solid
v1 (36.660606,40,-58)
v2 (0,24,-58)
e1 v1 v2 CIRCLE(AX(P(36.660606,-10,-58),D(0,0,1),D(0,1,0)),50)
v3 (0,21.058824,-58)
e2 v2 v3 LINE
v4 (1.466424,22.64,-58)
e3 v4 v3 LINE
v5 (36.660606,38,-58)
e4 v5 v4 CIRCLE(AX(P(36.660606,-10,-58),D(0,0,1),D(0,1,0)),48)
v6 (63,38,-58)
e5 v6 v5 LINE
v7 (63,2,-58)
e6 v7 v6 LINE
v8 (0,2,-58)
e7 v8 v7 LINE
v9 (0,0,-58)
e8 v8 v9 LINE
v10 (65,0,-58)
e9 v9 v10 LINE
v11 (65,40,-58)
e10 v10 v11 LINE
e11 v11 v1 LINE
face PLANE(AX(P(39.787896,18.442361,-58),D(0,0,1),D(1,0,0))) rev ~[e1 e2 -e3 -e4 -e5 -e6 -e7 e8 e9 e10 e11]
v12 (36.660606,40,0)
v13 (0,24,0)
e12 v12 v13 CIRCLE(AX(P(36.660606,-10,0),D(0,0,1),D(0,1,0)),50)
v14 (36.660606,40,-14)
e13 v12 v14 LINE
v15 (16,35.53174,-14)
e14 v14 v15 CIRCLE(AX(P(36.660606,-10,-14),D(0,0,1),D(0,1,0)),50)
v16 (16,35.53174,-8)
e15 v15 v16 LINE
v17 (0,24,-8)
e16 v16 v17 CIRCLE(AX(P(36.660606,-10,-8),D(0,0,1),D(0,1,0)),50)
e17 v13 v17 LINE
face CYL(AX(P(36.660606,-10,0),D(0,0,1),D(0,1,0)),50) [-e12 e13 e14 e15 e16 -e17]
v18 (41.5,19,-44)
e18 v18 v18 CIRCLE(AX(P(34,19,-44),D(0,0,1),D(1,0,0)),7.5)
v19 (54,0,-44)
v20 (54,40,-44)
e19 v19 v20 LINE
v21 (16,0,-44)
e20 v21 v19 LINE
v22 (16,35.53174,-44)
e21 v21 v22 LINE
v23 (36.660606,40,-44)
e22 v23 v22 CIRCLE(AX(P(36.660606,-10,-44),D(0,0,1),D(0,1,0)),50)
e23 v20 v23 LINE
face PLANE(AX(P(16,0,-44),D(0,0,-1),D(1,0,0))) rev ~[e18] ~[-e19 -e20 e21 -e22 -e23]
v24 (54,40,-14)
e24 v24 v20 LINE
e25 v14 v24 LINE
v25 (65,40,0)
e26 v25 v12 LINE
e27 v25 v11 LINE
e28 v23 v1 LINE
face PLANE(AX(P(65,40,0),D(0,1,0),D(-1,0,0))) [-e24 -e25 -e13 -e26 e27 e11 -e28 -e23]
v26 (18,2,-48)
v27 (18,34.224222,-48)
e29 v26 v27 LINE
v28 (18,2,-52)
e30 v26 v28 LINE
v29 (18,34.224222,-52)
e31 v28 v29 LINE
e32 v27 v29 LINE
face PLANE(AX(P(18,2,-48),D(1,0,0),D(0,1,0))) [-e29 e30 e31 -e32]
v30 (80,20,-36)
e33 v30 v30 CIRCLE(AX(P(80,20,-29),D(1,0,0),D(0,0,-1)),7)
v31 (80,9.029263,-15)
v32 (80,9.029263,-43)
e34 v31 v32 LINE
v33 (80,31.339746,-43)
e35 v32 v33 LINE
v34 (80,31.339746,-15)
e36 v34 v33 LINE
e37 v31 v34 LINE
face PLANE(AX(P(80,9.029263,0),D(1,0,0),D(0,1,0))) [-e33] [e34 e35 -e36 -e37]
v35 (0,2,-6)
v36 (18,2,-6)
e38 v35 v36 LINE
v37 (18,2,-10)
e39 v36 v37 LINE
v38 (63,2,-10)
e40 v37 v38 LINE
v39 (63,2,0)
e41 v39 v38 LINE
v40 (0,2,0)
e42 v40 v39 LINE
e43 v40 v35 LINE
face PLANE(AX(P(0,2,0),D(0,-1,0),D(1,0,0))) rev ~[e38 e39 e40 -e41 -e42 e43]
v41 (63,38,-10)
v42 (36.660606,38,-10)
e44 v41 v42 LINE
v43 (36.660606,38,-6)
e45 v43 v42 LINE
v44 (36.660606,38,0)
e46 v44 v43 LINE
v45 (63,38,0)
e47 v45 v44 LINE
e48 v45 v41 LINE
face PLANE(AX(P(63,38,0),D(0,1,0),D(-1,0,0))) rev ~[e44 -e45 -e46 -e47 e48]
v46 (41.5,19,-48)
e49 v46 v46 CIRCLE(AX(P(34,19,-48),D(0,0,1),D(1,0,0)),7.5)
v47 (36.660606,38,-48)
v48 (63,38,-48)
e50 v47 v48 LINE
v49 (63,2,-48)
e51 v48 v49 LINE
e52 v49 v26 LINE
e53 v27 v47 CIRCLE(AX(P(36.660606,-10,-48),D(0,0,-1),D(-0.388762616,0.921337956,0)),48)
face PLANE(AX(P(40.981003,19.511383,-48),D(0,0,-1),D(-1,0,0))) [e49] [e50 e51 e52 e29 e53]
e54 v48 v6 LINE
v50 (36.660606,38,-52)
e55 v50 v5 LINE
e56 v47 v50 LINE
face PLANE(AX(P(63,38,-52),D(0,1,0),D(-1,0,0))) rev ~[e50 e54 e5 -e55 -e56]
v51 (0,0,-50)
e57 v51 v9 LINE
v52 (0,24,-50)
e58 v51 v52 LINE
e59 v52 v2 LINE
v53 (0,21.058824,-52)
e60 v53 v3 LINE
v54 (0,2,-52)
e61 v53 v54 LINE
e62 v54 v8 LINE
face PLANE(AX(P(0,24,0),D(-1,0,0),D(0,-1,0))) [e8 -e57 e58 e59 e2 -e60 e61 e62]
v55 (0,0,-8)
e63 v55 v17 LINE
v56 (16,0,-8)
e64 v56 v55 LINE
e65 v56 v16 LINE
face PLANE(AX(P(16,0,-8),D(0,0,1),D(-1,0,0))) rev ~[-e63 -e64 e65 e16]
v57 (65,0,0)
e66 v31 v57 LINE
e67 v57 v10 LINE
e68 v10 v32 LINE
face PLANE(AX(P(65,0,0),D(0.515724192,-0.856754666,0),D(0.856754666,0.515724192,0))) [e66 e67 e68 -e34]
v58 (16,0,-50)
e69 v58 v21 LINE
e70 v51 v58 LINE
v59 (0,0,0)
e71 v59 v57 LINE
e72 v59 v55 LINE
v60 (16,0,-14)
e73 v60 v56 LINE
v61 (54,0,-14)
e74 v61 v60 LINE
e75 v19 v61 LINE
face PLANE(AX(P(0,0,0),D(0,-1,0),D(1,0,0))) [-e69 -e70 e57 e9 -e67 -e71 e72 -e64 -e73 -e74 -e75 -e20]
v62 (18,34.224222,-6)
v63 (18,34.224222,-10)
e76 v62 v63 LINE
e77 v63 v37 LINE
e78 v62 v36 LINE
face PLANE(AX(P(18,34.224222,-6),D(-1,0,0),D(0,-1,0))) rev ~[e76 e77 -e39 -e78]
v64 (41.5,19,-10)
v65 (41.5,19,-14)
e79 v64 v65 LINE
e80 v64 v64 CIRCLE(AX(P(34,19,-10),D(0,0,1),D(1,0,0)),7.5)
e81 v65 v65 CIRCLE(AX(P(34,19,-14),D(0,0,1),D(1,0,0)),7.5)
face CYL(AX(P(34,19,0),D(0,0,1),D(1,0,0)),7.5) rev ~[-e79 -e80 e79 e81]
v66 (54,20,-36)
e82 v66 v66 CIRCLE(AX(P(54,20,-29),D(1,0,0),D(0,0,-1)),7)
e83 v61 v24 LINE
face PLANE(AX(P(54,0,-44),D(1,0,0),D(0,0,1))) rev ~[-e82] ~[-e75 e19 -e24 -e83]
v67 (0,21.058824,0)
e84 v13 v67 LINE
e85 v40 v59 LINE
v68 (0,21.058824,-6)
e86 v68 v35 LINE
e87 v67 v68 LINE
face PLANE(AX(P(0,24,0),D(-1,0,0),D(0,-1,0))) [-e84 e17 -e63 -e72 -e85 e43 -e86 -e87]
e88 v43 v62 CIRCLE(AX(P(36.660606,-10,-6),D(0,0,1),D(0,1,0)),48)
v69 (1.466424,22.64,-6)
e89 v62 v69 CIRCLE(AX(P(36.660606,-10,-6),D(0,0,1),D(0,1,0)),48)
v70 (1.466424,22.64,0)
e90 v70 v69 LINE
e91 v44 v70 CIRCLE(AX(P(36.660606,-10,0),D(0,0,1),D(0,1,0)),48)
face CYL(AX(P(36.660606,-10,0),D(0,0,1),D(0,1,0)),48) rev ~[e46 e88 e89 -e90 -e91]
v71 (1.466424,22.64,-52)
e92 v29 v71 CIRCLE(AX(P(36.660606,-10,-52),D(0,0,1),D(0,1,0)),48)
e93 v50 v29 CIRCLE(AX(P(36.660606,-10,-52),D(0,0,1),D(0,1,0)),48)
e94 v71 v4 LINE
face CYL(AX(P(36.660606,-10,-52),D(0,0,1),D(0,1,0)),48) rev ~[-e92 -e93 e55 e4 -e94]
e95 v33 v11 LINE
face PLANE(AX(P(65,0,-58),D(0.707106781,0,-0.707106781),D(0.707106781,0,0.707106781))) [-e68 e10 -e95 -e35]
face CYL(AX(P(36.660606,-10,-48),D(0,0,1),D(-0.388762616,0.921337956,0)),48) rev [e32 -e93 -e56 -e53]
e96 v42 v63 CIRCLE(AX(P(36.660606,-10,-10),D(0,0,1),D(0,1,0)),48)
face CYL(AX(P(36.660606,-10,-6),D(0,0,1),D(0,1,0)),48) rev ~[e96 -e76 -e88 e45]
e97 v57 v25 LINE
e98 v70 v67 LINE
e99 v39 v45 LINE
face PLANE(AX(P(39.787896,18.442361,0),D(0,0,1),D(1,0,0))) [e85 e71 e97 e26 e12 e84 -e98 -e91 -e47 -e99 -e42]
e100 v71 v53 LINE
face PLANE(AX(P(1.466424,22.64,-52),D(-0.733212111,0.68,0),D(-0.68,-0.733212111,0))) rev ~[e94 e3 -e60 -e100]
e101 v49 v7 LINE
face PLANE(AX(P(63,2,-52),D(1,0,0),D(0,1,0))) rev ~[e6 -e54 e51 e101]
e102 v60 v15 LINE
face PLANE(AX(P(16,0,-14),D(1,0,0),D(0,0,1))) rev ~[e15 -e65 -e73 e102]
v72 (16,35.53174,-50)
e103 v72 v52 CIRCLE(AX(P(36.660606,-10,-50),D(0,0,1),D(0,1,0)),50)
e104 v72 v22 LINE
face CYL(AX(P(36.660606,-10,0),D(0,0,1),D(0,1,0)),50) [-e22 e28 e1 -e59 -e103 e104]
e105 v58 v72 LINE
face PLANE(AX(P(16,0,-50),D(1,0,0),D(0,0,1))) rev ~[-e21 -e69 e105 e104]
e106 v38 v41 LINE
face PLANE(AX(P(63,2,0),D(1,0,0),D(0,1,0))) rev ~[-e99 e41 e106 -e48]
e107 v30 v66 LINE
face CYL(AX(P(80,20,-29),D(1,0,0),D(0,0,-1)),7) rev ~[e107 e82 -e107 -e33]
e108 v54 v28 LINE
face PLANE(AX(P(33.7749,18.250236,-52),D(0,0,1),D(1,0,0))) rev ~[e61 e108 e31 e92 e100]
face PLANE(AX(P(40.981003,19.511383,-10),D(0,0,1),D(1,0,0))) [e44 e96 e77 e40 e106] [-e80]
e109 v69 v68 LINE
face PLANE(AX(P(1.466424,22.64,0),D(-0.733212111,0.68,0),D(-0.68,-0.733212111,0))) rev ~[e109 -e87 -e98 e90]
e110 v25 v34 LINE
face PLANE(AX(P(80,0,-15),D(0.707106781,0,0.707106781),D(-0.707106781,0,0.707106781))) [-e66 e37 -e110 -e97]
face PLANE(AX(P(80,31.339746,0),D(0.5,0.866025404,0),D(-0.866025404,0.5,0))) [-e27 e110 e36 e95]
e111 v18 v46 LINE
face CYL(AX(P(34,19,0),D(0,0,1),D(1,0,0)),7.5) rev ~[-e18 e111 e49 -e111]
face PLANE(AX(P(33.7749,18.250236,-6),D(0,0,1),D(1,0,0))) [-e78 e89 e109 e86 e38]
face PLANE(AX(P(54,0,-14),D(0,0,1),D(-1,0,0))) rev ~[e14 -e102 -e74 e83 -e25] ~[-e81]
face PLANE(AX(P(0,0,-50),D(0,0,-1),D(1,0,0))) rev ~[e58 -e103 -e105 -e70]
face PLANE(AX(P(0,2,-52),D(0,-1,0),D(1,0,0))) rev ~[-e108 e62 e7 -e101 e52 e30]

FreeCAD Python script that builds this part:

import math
import FreeCAD as App
import Part
import Sketcher
Q = App.Units.Quantity


def add_polygon(sketch, points):
    """Adds a closed chain of lines whose ends are joined by coincident constraints."""
    first, n = sketch.GeometryCount, len(points)
    for a, b in zip(points, points[1:] + points[:1]):
        sketch.addGeometry(Part.LineSegment(App.Vector(*a, 0), App.Vector(*b, 0)), False)
    for i in range(n):
        sketch.addConstraint(Sketcher.Constraint("Coincident", first + i, 2, first + (i + 1) % n, 1))

doc = App.newDocument("Part")
body = doc.addObject("PartDesign::Body", "Body")

# Sketch on XY plane
sketch1 = body.newObject("Sketcher::SketchObject", "Sketch")
sketch1.AttachmentSupport = (doc.getObject("XY_Plane"), [""])
sketch1.MapMode = "FlatFace"
sketch1.addGeometry([
    Part.LineSegment(App.Vector(0, 0, 0), App.Vector(65, 0, 0)),  # 0
    Part.LineSegment(App.Vector(65, 0, 0), App.Vector(80, 9, 0)),  # 1
    Part.LineSegment(App.Vector(80, 9, 0), App.Vector(80, 31, 0)),  # 2
    Part.LineSegment(App.Vector(80, 31, 0), App.Vector(65, 40, 0)),  # 3
    Part.LineSegment(App.Vector(65, 40, 0), App.Vector(37, 40, 0)),  # 4
    Part.ArcOfCircle(Part.Circle(App.Vector(37, -10, 0), App.Vector(0, 0, 1), 50), math.radians(90), math.radians(137)),  # 5
    Part.LineSegment(App.Vector(0, 24, 0), App.Vector(0, 0, 0)),  # 6
], False)
sketch1.addConstraint([
    Sketcher.Constraint("Coincident", 0, 2, 1, 1),
    Sketcher.Constraint("Coincident", 1, 2, 2, 1),
    Sketcher.Constraint("Coincident", 2, 2, 3, 1),
    Sketcher.Constraint("Coincident", 3, 2, 4, 1),
    Sketcher.Constraint("Tangent", 4, 2, 5, 1),
    Sketcher.Constraint("Coincident", 5, 2, 6, 1),
    Sketcher.Constraint("Coincident", 6, 2, 0, 1),
    Sketcher.Constraint("Horizontal", 0),
    Sketcher.Constraint("Vertical", 2),
    Sketcher.Constraint("Horizontal", 4),
    Sketcher.Constraint("Vertical", 6),
    Sketcher.Constraint("Coincident", 6, 2, -1, 1),
    Sketcher.Constraint("Vertical", 0, 2, 3, 2),
    Sketcher.Constraint("Radius", 5, Q("50 mm")),
    Sketcher.Constraint("DistanceX", 0, 1, 0, 2, Q("65 mm")),
    Sketcher.Constraint("DistanceY", 6, 2, 6, 1, Q("24 mm")),
    Sketcher.Constraint("Angle", 3, Q("150 deg")),
    Sketcher.Constraint("DistanceY", 5, 3, -1, 1, Q("10 mm")),
    Sketcher.Constraint("DistanceX", -1, 1, 1, 2, Q("80 mm")),
    Sketcher.Constraint("Distance", 1, Q("17.507929 mm")),
])
pad1 = body.newObject("PartDesign::Pad", "Pad")
pad1.Profile = sketch1
pad1.Length = 58
pad1.Reversed = True

# Sketch on XY plane
sketch2 = body.newObject("Sketcher::SketchObject", "Sketch001")
sketch2.AttachmentSupport = (doc.getObject("XY_Plane"), [""])
sketch2.MapMode = "FlatFace"
sketch2.addGeometry(Part.Circle(App.Vector(34, 19, 0), App.Vector(0, 0, 1), 8), False)
sketch2.addConstraint([
    Sketcher.Constraint("Diameter", 0, Q("15 mm")),
    Sketcher.Constraint("DistanceX", -1, 1, 0, 3, Q("34 mm")),
    Sketcher.Constraint("DistanceY", -1, 1, 0, 3, Q("19 mm")),
])
pocket1 = body.newObject("PartDesign::Pocket", "Pocket")
pocket1.Profile = sketch2
pocket1.Type = "ThroughAll"

# Sketch on XZ plane
sketch3 = body.newObject("Sketcher::SketchObject", "Sketch002")
sketch3.AttachmentSupport = (doc.getObject("XZ_Plane"), [""])
sketch3.MapMode = "FlatFace"
add_polygon(sketch3, [(65, -58), (80, -43), (80, -58)])  # lines 0-2
add_polygon(sketch3, [(80, 0), (80, -15), (65, 0)])  # lines 3-5
sketch3.addConstraint([
    Sketcher.Constraint("Vertical", 1),
    Sketcher.Constraint("Horizontal", 2),
    Sketcher.Constraint("Vertical", 3),
    Sketcher.Constraint("Horizontal", 5),
    Sketcher.Constraint("PointOnObject", 4, 2, -1),
    Sketcher.Constraint("Perpendicular", 0, 4),
    Sketcher.Constraint("Vertical", 1, 2, 3, 2),
    Sketcher.Constraint("Vertical", 2, 2, 4, 2),
    Sketcher.Constraint("Equal", 5, 1),
    Sketcher.Constraint("DistanceX", 2, 2, 2, 1, Q("15 mm")),
    Sketcher.Constraint("DistanceX", -1, 1, 0, 2, Q("80 mm")),
    Sketcher.Constraint("DistanceY", 0, 2, -1, 1, Q("43 mm")),
])
pocket2 = body.newObject("PartDesign::Pocket", "Pocket001")
pocket2.Profile = sketch3
pocket2.Type = "ThroughAll"

# Sketch on XZ plane
sketch4 = body.newObject("Sketcher::SketchObject", "Sketch003")
sketch4.AttachmentSupport = (doc.getObject("XZ_Plane"), [""])
sketch4.MapMode = "FlatFace"
add_polygon(sketch4, [(0, -8), (0, -50), (16, -50), (16, -44), (54, -44), (54, -14), (16, -14), (16, -8)])  # lines 0-7
sketch4.addConstraint([
    Sketcher.Constraint("Vertical", 0),
    Sketcher.Constraint("Horizontal", 1),
    Sketcher.Constraint("Vertical", 2),
    Sketcher.Constraint("Horizontal", 3),
    Sketcher.Constraint("Vertical", 4),
    Sketcher.Constraint("Horizontal", 5),
    Sketcher.Constraint("Vertical", 6),
    Sketcher.Constraint("Horizontal", 7),
    Sketcher.Constraint("PointOnObject", 0, 2, -2),
    Sketcher.Constraint("Vertical", 2, 2, 5, 2),
    Sketcher.Constraint("Equal", 2, 6),
    Sketcher.Constraint("DistanceX", 1, 1, 1, 2, Q("16 mm")),
    Sketcher.Constraint("DistanceX", 3, 1, 3, 2, Q("38 mm")),
    Sketcher.Constraint("DistanceY", 0, 2, 0, 1, Q("42 mm")),
    Sketcher.Constraint("DistanceY", 2, 1, 2, 2, Q("6 mm")),
    Sketcher.Constraint("DistanceY", 0, 2, -1, 1, Q("50 mm")),
])
pocket3 = body.newObject("PartDesign::Pocket", "Pocket002")
pocket3.Profile = sketch4
pocket3.Type = "ThroughAll"

# Sketch on YZ plane
sketch5 = body.newObject("Sketcher::SketchObject", "Sketch004")
sketch5.AttachmentSupport = (doc.getObject("YZ_Plane"), [""])
sketch5.MapMode = "FlatFace"
sketch5.AttachmentOffset = App.Placement(App.Vector(0, 0, 80), App.Rotation())
sketch5.addGeometry(Part.Circle(App.Vector(20, -29, 0), App.Vector(0, 0, 1), 7), False)
sketch5.addConstraint([
    Sketcher.Constraint("Diameter", 0, Q("14 mm")),
    Sketcher.Constraint("DistanceX", -1, 1, 0, 3, Q("20 mm")),
    Sketcher.Constraint("DistanceY", 0, 3, -1, 1, Q("29 mm")),
])
pocket4 = body.newObject("PartDesign::Pocket", "Pocket003")
pocket4.Profile = sketch5
pocket4.Type = "ThroughAll"

# Sketch on XY plane
sketch6 = body.newObject("Sketcher::SketchObject", "Sketch005")
sketch6.AttachmentSupport = (doc.getObject("XY_Plane"), [""])
sketch6.MapMode = "FlatFace"
sketch6.addGeometry([
    Part.LineSegment(App.Vector(1.5, 22.6, 0), App.Vector(0, 21.1, 0)),  # 0
    Part.LineSegment(App.Vector(0, 21.1, 0), App.Vector(0, 2, 0)),  # 1
    Part.LineSegment(App.Vector(0, 2, 0), App.Vector(63, 2, 0)),  # 2
    Part.LineSegment(App.Vector(63, 2, 0), App.Vector(63, 38, 0)),  # 3
    Part.LineSegment(App.Vector(63, 38, 0), App.Vector(36.7, 38, 0)),  # 4
    Part.ArcOfCircle(Part.Circle(App.Vector(36.7, -10, 0), App.Vector(0, 0, 1), 48), math.radians(90), math.radians(137)),  # 5
], False)
sketch6.addConstraint([
    Sketcher.Constraint("Coincident", 0, 2, 1, 1),
    Sketcher.Constraint("Coincident", 1, 2, 2, 1),
    Sketcher.Constraint("Coincident", 2, 2, 3, 1),
    Sketcher.Constraint("Coincident", 3, 2, 4, 1),
    Sketcher.Constraint("Tangent", 4, 2, 5, 1),
    Sketcher.Constraint("Tangent", 5, 2, 0, 1),
    Sketcher.Constraint("Vertical", 1),
    Sketcher.Constraint("Horizontal", 2),
    Sketcher.Constraint("Vertical", 3),
    Sketcher.Constraint("Horizontal", 4),
    Sketcher.Constraint("PointOnObject", 0, 2, -2),
    Sketcher.Constraint("Radius", 5, Q("48 mm")),
    Sketcher.Constraint("DistanceX", 2, 1, 2, 2, Q("63 mm")),
    Sketcher.Constraint("DistanceY", 3, 1, 3, 2, Q("36 mm")),
    Sketcher.Constraint("DistanceY", 5, 3, -1, 1, Q("10 mm")),
    Sketcher.Constraint("DistanceY", -1, 1, 5, 2, Q("22.64 mm")),
    Sketcher.Constraint("DistanceX", 4, 2, 4, 1, Q("26.339394 mm")),
])
pocket5 = body.newObject("PartDesign::Pocket", "Pocket004")
pocket5.Profile = sketch6
pocket5.Length = 6

# Sketch on XY plane
sketch7 = body.newObject("Sketcher::SketchObject", "Sketch006")
sketch7.AttachmentSupport = (doc.getObject("XY_Plane"), [""])
sketch7.MapMode = "FlatFace"
sketch7.AttachmentOffset = App.Placement(App.Vector(0, 0, -6), App.Rotation())
sketch7.addGeometry([
    Part.LineSegment(App.Vector(18, 2, 0), App.Vector(63, 2, 0)),  # 0
    Part.LineSegment(App.Vector(63, 2, 0), App.Vector(63, 38, 0)),  # 1
    Part.LineSegment(App.Vector(63, 38, 0), App.Vector(37, 38, 0)),  # 2
    Part.ArcOfCircle(Part.Circle(App.Vector(37, -10, 0), App.Vector(0, 0, 1), 48), math.radians(90), math.radians(113)),  # 3
    Part.LineSegment(App.Vector(18, 34, 0), App.Vector(18, 2, 0)),  # 4
], False)
sketch7.addConstraint([
    Sketcher.Constraint("Coincident", 0, 2, 1, 1),
    Sketcher.Constraint("Coincident", 1, 2, 2, 1),
    Sketcher.Constraint("Tangent", 2, 2, 3, 1),
    Sketcher.Constraint("Coincident", 3, 2, 4, 1),
    Sketcher.Constraint("Coincident", 4, 2, 0, 1),
    Sketcher.Constraint("Horizontal", 0),
    Sketcher.Constraint("Vertical", 1),
    Sketcher.Constraint("Horizontal", 2),
    Sketcher.Constraint("Vertical", 4),
    Sketcher.Constraint("Radius", 3, Q("48 mm")),
    Sketcher.Constraint("DistanceX", 0, 1, 0, 2, Q("45 mm")),
    Sketcher.Constraint("DistanceY", 1, 1, 1, 2, Q("36 mm")),
    Sketcher.Constraint("DistanceY", 3, 3, -1, 1, Q("10 mm")),
    Sketcher.Constraint("DistanceX", -1, 1, 0, 2, Q("63 mm")),
    Sketcher.Constraint("DistanceY", 4, 2, 4, 1, Q("32.224222 mm")),
])
pocket6 = body.newObject("PartDesign::Pocket", "Pocket005")
pocket6.Profile = sketch7
pocket6.Length = 4

# Sketch on XY plane
sketch8 = body.newObject("Sketcher::SketchObject", "Sketch007")
sketch8.AttachmentSupport = (doc.getObject("XY_Plane"), [""])
sketch8.MapMode = "FlatFace"
sketch8.AttachmentOffset = App.Placement(App.Vector(0, 0, -52), App.Rotation())
sketch8.addGeometry([
    Part.LineSegment(App.Vector(0, 21.1, 0), App.Vector(1.5, 22.6, 0)),  # 0
    Part.ArcOfCircle(Part.Circle(App.Vector(36.7, -10, 0), App.Vector(0, 0, 1), 48), math.radians(90), math.radians(137)),  # 1
    Part.LineSegment(App.Vector(36.7, 38, 0), App.Vector(63, 38, 0)),  # 2
    Part.LineSegment(App.Vector(63, 38, 0), App.Vector(63, 2, 0)),  # 3
    Part.LineSegment(App.Vector(63, 2, 0), App.Vector(0, 2, 0)),  # 4
    Part.LineSegment(App.Vector(0, 2, 0), App.Vector(0, 21.1, 0)),  # 5
], False)
sketch8.addConstraint([
    Sketcher.Constraint("Tangent", 0, 2, 1, 2),
    Sketcher.Constraint("Tangent", 1, 1, 2, 1),
    Sketcher.Constraint("Coincident", 2, 2, 3, 1),
    Sketcher.Constraint("Coincident", 3, 2, 4, 1),
    Sketcher.Constraint("Coincident", 4, 2, 5, 1),
    Sketcher.Constraint("Coincident", 5, 2, 0, 1),
    Sketcher.Constraint("Horizontal", 2),
    Sketcher.Constraint("Vertical", 3),
    Sketcher.Constraint("Horizontal", 4),
    Sketcher.Constraint("Vertical", 5),
    Sketcher.Constraint("PointOnObject", 4, 2, -2),
    Sketcher.Constraint("Radius", 1, Q("48 mm")),
    Sketcher.Constraint("DistanceX", 4, 2, 4, 1, Q("63 mm")),
    Sketcher.Constraint("DistanceY", 3, 2, 3, 1, Q("36 mm")),
    Sketcher.Constraint("DistanceY", 1, 3, -1, 1, Q("10 mm")),
    Sketcher.Constraint("DistanceY", -1, 1, 0, 2, Q("22.64 mm")),
    Sketcher.Constraint("DistanceX", 2, 1, 2, 2, Q("26.339394 mm")),
])
pocket7 = body.newObject("PartDesign::Pocket", "Pocket006")
pocket7.Profile = sketch8
pocket7.Length = 6

# Sketch on XY plane
sketch9 = body.newObject("Sketcher::SketchObject", "Sketch008")
sketch9.AttachmentSupport = (doc.getObject("XY_Plane"), [""])
sketch9.MapMode = "FlatFace"
sketch9.AttachmentOffset = App.Placement(App.Vector(0, 0, -48), App.Rotation())
sketch9.addGeometry([
    Part.LineSegment(App.Vector(63, 38, 0), App.Vector(63, 2, 0)),  # 0
    Part.LineSegment(App.Vector(63, 2, 0), App.Vector(18, 2, 0)),  # 1
    Part.LineSegment(App.Vector(18, 2, 0), App.Vector(18, 34, 0)),  # 2
    Part.ArcOfCircle(Part.Circle(App.Vector(37, -10, 0), App.Vector(0, 0, 1), 48), math.radians(90), math.radians(113)),  # 3
    Part.LineSegment(App.Vector(37, 38, 0), App.Vector(63, 38, 0)),  # 4
], False)
sketch9.addConstraint([
    Sketcher.Constraint("Coincident", 0, 2, 1, 1),
    Sketcher.Constraint("Coincident", 1, 2, 2, 1),
    Sketcher.Constraint("Coincident", 2, 2, 3, 2),
    Sketcher.Constraint("Tangent", 3, 1, 4, 1),
    Sketcher.Constraint("Coincident", 4, 2, 0, 1),
    Sketcher.Constraint("Vertical", 0),
    Sketcher.Constraint("Horizontal", 1),
    Sketcher.Constraint("Vertical", 2),
    Sketcher.Constraint("Horizontal", 4),
    Sketcher.Constraint("Radius", 3, Q("48 mm")),
    Sketcher.Constraint("DistanceX", 1, 2, 1, 1, Q("45 mm")),
    Sketcher.Constraint("DistanceY", 0, 2, 0, 1, Q("36 mm")),
    Sketcher.Constraint("DistanceY", 3, 3, -1, 1, Q("10 mm")),
    Sketcher.Constraint("DistanceX", -1, 1, 0, 2, Q("63 mm")),
    Sketcher.Constraint("DistanceY", 2, 1, 2, 2, Q("32.224222 mm")),
])
pocket8 = body.newObject("PartDesign::Pocket", "Pocket007")
pocket8.Profile = sketch9
pocket8.Length = 4

doc.recompute()
